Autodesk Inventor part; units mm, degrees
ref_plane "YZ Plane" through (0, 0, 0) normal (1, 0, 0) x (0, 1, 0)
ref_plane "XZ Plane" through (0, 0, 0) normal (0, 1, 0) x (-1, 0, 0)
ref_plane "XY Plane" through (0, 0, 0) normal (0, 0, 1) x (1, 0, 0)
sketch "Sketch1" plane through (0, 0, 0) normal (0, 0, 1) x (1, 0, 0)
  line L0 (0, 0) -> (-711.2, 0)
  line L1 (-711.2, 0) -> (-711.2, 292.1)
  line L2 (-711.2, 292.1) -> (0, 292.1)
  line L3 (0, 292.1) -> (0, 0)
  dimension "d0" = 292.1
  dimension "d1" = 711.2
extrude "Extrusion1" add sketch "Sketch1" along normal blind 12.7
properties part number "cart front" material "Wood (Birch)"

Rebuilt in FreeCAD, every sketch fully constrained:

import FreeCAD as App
import Part
import Sketcher
from FreeCAD import Vector
Q = App.Units.Quantity


def add_polygon(sketch, points):
    """Adds a closed chain of lines whose ends are joined by coincident constraints."""
    first, n = sketch.GeometryCount, len(points)
    for a, b in zip(points, points[1:] + points[:1]):
        sketch.addGeometry(Part.LineSegment(App.Vector(*a, 0), App.Vector(*b, 0)), False)
    for i in range(n):
        sketch.addConstraint(Sketcher.Constraint("Coincident", first + i, 2, first + (i + 1) % n, 1))

doc = App.newDocument("Part")
body = doc.addObject("PartDesign::Body", "Body")

# Sketch on XY plane
sketch1 = doc.addObject("Sketcher::SketchObject", "Sketch")
body.addObject(sketch1)
sketch1.AttachmentSupport = (doc.XY_Plane, [""])
sketch1.MapMode = "FlatFace"
add_polygon(sketch1, [(-711, 0), (0, 0), (0, 292), (-711, 292)])  # lines 0-3
sketch1.addConstraint([
    Sketcher.Constraint("Horizontal", 0),
    Sketcher.Constraint("Vertical", 1),
    Sketcher.Constraint("Horizontal", 2),
    Sketcher.Constraint("Vertical", 3),
    Sketcher.Constraint("Coincident", 0, 2, -1, 1),
    Sketcher.Constraint("DistanceX", 0, 1, 0, 2, Q("28 in")),
    Sketcher.Constraint("DistanceY", 1, 1, 1, 2, Q("11.5 in")),
])
pad1 = doc.addObject("PartDesign::Pad", "Pad")
body.addObject(pad1)
pad1.Profile = sketch1
pad1.Length = Q("0.5 in")

doc.recompute()
